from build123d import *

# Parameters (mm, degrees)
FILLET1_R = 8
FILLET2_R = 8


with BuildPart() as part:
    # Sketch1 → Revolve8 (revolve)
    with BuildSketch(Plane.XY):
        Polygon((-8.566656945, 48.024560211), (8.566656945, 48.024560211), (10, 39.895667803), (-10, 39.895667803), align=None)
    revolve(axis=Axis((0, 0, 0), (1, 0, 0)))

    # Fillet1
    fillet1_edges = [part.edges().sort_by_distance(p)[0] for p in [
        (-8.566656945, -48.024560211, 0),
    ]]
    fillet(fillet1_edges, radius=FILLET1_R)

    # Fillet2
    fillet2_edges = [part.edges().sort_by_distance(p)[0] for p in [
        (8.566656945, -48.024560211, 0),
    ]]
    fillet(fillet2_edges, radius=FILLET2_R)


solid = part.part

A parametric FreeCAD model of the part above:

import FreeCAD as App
import Part
import Sketcher

V = App.Vector
Q = App.Units.Quantity


def edges_at(feature, points):
    """Names of the edges that pass closest to the given points."""
    edges = feature.Shape.Edges
    near = lambda p: min(range(len(edges)), key=lambda i: edges[i].distToShape(Part.Vertex(*p))[0])
    return sorted({f"Edge{near(p) + 1}" for p in points})


def add_polygon(sketch, points):
    """Adds a closed chain of lines whose ends are joined by coincident constraints."""
    first, n = sketch.GeometryCount, len(points)
    for a, b in zip(points, points[1:] + points[:1]):
        sketch.addGeometry(Part.LineSegment(App.Vector(*a, 0), App.Vector(*b, 0)), False)
    for i in range(n):
        sketch.addConstraint(Sketcher.Constraint("Coincident", first + i, 2, first + (i + 1) % n, 1))

doc = App.newDocument("Part")
body = doc.addObject("PartDesign::Body", "Body")

# Sketch on XY plane
sketch1 = body.newObject("Sketcher::SketchObject", "Sketch")
sketch1.AttachmentSupport = (doc.getObject("XY_Plane"), [""])
sketch1.MapMode = "FlatFace"
add_polygon(sketch1, [(9, 48), (-9, 48), (-10, 40), (10, 40)])  # lines 0-3
sketch1.addConstraint([
    Sketcher.Constraint("Horizontal", 0),
    Sketcher.Constraint("Horizontal", 2),
    Sketcher.Constraint("Equal", 1, 3),
    Sketcher.Constraint("DistanceX", 2, 1, 2, 2, 20.0),
    Sketcher.Constraint("Angle", 1, Q("-100 deg")),
    Sketcher.Constraint("DistanceX", 1, 2, -1, 1, 10.0),
    Sketcher.Constraint("DistanceX", 0, 2, 0, 1, 17.133314),
    Sketcher.Constraint("DistanceY", -1, 1, 0, 2, 48.02456),
])
revolution = body.newObject("PartDesign::Revolution", "Revolution")
revolution.Profile = sketch1
revolution.ReferenceAxis = (sketch1, ["H_Axis"])
revolution.Angle = 360
doc.recompute()

fillet = body.newObject("PartDesign::Fillet", "Fillet")
fillet.Base = (revolution, edges_at(revolution, [(-8.567, -48.025, 0)]))
fillet.Radius = 8
doc.recompute()

fillet2 = body.newObject("PartDesign::Fillet", "Fillet001")
fillet2.Base = (fillet, edges_at(fillet, [(8.567, -48.025, 0)]))
fillet2.Radius = 8

doc.recompute()
